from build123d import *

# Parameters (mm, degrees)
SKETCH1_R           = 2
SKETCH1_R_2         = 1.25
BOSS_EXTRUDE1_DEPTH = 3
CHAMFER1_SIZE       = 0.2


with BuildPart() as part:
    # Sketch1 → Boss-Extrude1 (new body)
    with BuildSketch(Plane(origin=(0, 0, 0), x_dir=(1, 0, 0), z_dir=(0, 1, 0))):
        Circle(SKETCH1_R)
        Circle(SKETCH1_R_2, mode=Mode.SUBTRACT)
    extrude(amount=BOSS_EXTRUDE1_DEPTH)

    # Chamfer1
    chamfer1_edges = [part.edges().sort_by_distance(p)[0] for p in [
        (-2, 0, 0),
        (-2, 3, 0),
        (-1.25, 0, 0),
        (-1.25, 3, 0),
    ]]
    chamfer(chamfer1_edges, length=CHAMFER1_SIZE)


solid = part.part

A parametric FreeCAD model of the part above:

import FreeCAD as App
import Part
import Sketcher

V = App.Vector
Q = App.Units.Quantity


def edges_at(feature, points):
    """Names of the edges that pass closest to the given points."""
    edges = feature.Shape.Edges
    near = lambda p: min(range(len(edges)), key=lambda i: edges[i].distToShape(Part.Vertex(*p))[0])
    return sorted({f"Edge{near(p) + 1}" for p in points})

doc = App.newDocument("Part")
body = doc.addObject("PartDesign::Body", "Body")

sketch1 = doc.addObject("Sketcher::SketchObject", "Sketch")
body.addObject(sketch1)
sketch1.AttachmentSupport = (doc.XZ_Plane, [""])
sketch1.MapMode = "FlatFace"
sketch1.addGeometry(Part.Circle(V(0, 0, 0), V(0, 0, 1), 2), False)
sketch1.addGeometry(Part.Circle(V(0, 0, 0), V(0, 0, 1), 1.25), False)
sketch1.addConstraint(Sketcher.Constraint("Coincident", 0, 3, -1, 1))
sketch1.addConstraint(Sketcher.Constraint("Coincident", 1, 3, -1, 1))
sketch1.addConstraint(Sketcher.Constraint("Diameter", 0, Q("4 mm")))
sketch1.addConstraint(Sketcher.Constraint("Diameter", 1, Q("2.5 mm")))
pad1 = doc.addObject("PartDesign::Pad", "Pad")
body.addObject(pad1)
pad1.Profile = sketch1
pad1.Length = 3
pad1.Reversed = True
doc.recompute()

chamfer = doc.addObject("PartDesign::Chamfer", "Chamfer")
body.addObject(chamfer)
chamfer.Base = (pad1, edges_at(pad1, [
    (-2, 0, 0),
    (-2, 3, 0),
    (-1.25, 0, 0),
    (-1.25, 3, 0),
]))
chamfer.Size = 0.2

doc.recompute()
